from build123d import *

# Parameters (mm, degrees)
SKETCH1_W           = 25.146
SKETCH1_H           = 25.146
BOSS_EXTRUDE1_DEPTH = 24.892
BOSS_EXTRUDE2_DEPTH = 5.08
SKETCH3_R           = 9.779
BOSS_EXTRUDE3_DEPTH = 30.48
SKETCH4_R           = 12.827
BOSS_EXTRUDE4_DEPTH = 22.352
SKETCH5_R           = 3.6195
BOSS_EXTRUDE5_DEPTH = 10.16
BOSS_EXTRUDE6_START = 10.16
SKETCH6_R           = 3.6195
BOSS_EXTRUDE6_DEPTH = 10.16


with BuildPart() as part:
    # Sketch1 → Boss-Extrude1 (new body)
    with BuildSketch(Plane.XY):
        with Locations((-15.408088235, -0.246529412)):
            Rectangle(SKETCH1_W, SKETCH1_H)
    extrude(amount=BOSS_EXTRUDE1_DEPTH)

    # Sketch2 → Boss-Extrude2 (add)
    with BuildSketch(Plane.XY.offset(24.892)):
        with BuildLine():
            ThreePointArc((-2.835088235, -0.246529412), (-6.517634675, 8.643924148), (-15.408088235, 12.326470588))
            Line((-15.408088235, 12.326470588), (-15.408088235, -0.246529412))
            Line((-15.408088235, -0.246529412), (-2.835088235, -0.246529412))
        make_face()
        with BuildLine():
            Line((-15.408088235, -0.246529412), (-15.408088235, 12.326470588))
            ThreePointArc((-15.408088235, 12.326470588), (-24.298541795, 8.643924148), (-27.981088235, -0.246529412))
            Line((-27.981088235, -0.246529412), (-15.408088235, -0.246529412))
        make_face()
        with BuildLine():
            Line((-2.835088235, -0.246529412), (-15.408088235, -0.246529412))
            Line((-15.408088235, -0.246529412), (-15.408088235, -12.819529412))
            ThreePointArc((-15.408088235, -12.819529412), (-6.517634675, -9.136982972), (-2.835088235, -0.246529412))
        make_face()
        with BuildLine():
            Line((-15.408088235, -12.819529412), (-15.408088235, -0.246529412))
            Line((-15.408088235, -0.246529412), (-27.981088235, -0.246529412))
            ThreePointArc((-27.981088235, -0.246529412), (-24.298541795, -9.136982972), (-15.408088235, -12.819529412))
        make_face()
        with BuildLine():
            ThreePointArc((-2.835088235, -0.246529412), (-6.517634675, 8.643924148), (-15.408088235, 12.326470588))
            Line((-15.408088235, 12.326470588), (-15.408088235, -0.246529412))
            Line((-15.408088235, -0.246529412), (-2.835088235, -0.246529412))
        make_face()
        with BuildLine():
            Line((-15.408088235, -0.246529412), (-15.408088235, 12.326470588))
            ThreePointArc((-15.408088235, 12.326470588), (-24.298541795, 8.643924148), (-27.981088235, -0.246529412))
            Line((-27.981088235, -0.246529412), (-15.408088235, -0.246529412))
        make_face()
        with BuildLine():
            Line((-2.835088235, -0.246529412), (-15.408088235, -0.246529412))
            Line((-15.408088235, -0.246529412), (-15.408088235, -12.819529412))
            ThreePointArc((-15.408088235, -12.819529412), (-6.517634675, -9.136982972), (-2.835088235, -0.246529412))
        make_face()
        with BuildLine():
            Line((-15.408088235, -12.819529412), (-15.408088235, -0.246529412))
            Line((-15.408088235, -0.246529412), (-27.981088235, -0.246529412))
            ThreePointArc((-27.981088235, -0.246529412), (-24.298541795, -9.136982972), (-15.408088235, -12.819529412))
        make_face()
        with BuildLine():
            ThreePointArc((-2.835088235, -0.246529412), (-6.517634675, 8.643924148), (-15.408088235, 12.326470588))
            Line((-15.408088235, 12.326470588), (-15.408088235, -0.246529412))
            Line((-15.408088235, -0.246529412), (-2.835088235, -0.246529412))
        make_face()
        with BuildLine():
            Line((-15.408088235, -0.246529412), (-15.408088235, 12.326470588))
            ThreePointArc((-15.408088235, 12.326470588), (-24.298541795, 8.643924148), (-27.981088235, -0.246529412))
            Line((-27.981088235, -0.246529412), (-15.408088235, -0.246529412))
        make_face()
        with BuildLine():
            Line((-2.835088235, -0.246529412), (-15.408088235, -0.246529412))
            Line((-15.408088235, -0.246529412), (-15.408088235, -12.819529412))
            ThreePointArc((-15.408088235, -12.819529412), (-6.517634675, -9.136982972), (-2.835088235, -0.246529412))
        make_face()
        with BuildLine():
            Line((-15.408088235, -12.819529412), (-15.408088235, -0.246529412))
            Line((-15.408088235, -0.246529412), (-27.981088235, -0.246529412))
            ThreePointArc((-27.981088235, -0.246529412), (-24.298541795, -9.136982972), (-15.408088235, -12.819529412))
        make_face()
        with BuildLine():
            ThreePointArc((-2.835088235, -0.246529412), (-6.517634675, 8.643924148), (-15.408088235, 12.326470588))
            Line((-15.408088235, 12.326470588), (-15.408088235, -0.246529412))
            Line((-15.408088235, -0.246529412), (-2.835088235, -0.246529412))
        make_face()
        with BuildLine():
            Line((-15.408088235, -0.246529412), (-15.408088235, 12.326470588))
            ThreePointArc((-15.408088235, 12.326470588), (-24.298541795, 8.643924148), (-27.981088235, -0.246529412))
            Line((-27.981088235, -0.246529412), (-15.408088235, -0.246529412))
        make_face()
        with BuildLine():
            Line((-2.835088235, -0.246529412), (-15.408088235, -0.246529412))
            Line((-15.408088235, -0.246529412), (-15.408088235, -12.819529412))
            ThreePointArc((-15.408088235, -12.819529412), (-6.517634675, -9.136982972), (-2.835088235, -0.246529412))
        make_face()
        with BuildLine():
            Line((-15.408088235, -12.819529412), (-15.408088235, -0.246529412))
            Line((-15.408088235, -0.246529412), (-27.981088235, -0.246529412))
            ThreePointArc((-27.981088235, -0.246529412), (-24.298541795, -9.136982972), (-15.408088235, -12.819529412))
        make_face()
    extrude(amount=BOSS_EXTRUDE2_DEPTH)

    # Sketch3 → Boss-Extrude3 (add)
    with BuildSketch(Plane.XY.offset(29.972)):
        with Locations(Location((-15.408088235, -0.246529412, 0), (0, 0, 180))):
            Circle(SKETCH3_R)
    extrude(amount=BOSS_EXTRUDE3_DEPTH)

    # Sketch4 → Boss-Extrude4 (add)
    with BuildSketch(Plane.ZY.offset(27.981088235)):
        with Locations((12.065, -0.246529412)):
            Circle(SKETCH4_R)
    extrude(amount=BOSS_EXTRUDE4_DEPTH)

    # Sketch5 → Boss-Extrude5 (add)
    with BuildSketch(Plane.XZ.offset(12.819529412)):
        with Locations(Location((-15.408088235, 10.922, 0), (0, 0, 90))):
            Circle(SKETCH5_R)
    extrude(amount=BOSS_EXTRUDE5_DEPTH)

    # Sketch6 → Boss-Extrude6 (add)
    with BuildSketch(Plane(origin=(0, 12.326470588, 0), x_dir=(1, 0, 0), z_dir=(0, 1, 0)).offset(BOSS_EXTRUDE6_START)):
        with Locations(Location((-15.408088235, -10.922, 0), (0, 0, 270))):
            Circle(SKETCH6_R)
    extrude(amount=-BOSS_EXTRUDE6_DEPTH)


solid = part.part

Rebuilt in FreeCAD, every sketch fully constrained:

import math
import FreeCAD as App
import Part
import Sketcher

V = App.Vector
Q = App.Units.Quantity

doc = App.newDocument("Part")
body = doc.addObject("PartDesign::Body", "Body")

# Sketch on XY plane
sketch1 = body.newObject("Sketcher::SketchObject", "Sketch")
sketch1.AttachmentSupport = (doc.getObject("XY_Plane"), [""])
sketch1.MapMode = "FlatFace"
sketch1.addGeometry([
    Part.LineSegment(V(-28, 12, 0), V(-28, -13, 0)),
    Part.LineSegment(V(-28, -13, 0), V(-3, -13, 0)),
    Part.LineSegment(V(-3, -13, 0), V(-3, 12, 0)),
    Part.LineSegment(V(-3, 12, 0), V(-28, 12, 0)),
], False)
sketch1.addConstraint([
    Sketcher.Constraint("Coincident", 0, 2, 1, 1),
    Sketcher.Constraint("Coincident", 1, 2, 2, 1),
    Sketcher.Constraint("Coincident", 2, 2, 3, 1),
    Sketcher.Constraint("Coincident", 3, 2, 0, 1),
    Sketcher.Constraint("Vertical", 0),
    Sketcher.Constraint("Horizontal", 1),
    Sketcher.Constraint("Vertical", 2),
    Sketcher.Constraint("Horizontal", 3),
    Sketcher.Constraint("Equal", 3, 0),
    Sketcher.Constraint("DistanceX", 1, 1, 1, 2, Q("0.99 in")),
    Sketcher.Constraint("DistanceX", 0, 2, -1, 1, Q("27.981088 mm")),
    Sketcher.Constraint("DistanceY", 0, 2, -1, 1, Q("12.819529 mm")),
])
pad1 = body.newObject("PartDesign::Pad", "Pad")
pad1.Profile = sketch1
pad1.Length = Q("0.98 in")

# Sketch on XY plane
sketch2 = body.newObject("Sketcher::SketchObject", "Sketch001")
sketch2.AttachmentSupport = (doc.getObject("XY_Plane"), [""])
sketch2.MapMode = "FlatFace"
sketch2.AttachmentOffset = App.Placement(V(0, 0, 0.98 * 25.4), App.Rotation())
sketch2.addGeometry([
    Part.ArcOfCircle(Part.Circle(V(-15, 0, 0), V(0, 0, 1), 13), math.radians(90), math.radians(180)),
    Part.ArcOfCircle(Part.Circle(V(-15, 0, 0), V(0, 0, 1), 13), math.radians(180), math.radians(270)),
    Part.ArcOfCircle(Part.Circle(V(-15, 0, 0), V(0, 0, 1), 13), math.radians(-90), math.radians(0)),
    Part.ArcOfCircle(Part.Circle(V(-15, 0, 0), V(0, 0, 1), 13), math.radians(0), math.radians(90)),
], False)
sketch2.addConstraint([
    Sketcher.Constraint("Tangent", 0, 2, 1, 1),
    Sketcher.Constraint("Tangent", 1, 2, 2, 1),
    Sketcher.Constraint("Tangent", 2, 2, 3, 1),
    Sketcher.Constraint("Tangent", 3, 2, 0, 1),
    Sketcher.Constraint("Equal", 0, 1),
    Sketcher.Constraint("Horizontal", 3, 3, 0, 2),
    Sketcher.Constraint("Horizontal", 0, 2, 2, 2),
    Sketcher.Constraint("Vertical", 3, 3, 1, 2),
    Sketcher.Constraint("Vertical", 1, 2, 3, 2),
    Sketcher.Constraint("Radius", 0, Q("0.495 in")),
    Sketcher.Constraint("DistanceX", 0, 3, -1, 1, Q("15.408088 mm")),
    Sketcher.Constraint("DistanceY", 0, 3, -1, 1, Q("0.246529 mm")),
])
pad2 = body.newObject("PartDesign::Pad", "Pad001")
pad2.Profile = sketch2
pad2.Length = Q("0.2 in")

# Sketch on XY plane
sketch3 = body.newObject("Sketcher::SketchObject", "Sketch002")
sketch3.AttachmentSupport = (doc.getObject("XY_Plane"), [""])
sketch3.MapMode = "FlatFace"
sketch3.AttachmentOffset = App.Placement(V(0, 0, 1.18 * 25.4), App.Rotation())
sketch3.addGeometry(Part.Circle(V(-15, 0, 0), V(0, 0, 1), 10), False)
sketch3.addConstraint([
    Sketcher.Constraint("Diameter", 0, Q("0.77 in")),
    Sketcher.Constraint("DistanceX", 0, 3, -1, 1, Q("15.408088 mm")),
    Sketcher.Constraint("DistanceY", 0, 3, -1, 1, Q("0.246529 mm")),
])
pad3 = body.newObject("PartDesign::Pad", "Pad002")
pad3.Profile = sketch3
pad3.Length = Q("1.2 in")

# Sketch on YZ plane
sketch4 = body.newObject("Sketcher::SketchObject", "Sketch003")
sketch4.AttachmentSupport = (doc.getObject("YZ_Plane"), [""])
sketch4.MapMode = "FlatFace"
sketch4.AttachmentOffset = App.Placement(V(0, 0, -27.981088), App.Rotation())
sketch4.addGeometry(Part.Circle(V(0, 12, 0), V(0, 0, 1), 13), False)
sketch4.addConstraint([
    Sketcher.Constraint("Diameter", 0, Q("1.01 in")),
    Sketcher.Constraint("DistanceY", -1, 1, 0, 3, Q("0.475 in")),
    Sketcher.Constraint("DistanceX", 0, 3, -1, 1, Q("0.246529 mm")),
])
pad4 = body.newObject("PartDesign::Pad", "Pad003")
pad4.Profile = sketch4
pad4.Length = Q("0.88 in")
pad4.Reversed = True

# Sketch on XZ plane
sketch5 = body.newObject("Sketcher::SketchObject", "Sketch004")
sketch5.AttachmentSupport = (doc.getObject("XZ_Plane"), [""])
sketch5.MapMode = "FlatFace"
sketch5.AttachmentOffset = App.Placement(V(0, 0, 12.819529), App.Rotation())
sketch5.addGeometry(Part.Circle(V(-15.4, 10.9, 0), V(0, 0, 1), 3.6), False)
sketch5.addConstraint([
    Sketcher.Constraint("Diameter", 0, Q("0.285 in")),
    Sketcher.Constraint("DistanceY", -1, 1, 0, 3, Q("0.43 in")),
    Sketcher.Constraint("DistanceX", 0, 3, -1, 1, Q("15.408088 mm")),
])
pad5 = body.newObject("PartDesign::Pad", "Pad004")
pad5.Profile = sketch5
pad5.Length = Q("0.4 in")

# Sketch on XZ plane
sketch6 = body.newObject("Sketcher::SketchObject", "Sketch005")
sketch6.AttachmentSupport = (doc.getObject("XZ_Plane"), [""])
sketch6.MapMode = "FlatFace"
sketch6.AttachmentOffset = App.Placement(V(0, 0, -22.486471), App.Rotation())
sketch6.addGeometry(Part.Circle(V(-15.4, 10.9, 0), V(0, 0, 1), 3.6), False)
sketch6.addConstraint([
    Sketcher.Constraint("Diameter", 0, Q("0.285 in")),
    Sketcher.Constraint("DistanceY", -1, 1, 0, 3, Q("0.43 in")),
    Sketcher.Constraint("DistanceX", 0, 3, -1, 1, Q("15.408088 mm")),
])
pad6 = body.newObject("PartDesign::Pad", "Pad005")
pad6.Profile = sketch6
pad6.Length = Q("0.4 in")

doc.recompute()
